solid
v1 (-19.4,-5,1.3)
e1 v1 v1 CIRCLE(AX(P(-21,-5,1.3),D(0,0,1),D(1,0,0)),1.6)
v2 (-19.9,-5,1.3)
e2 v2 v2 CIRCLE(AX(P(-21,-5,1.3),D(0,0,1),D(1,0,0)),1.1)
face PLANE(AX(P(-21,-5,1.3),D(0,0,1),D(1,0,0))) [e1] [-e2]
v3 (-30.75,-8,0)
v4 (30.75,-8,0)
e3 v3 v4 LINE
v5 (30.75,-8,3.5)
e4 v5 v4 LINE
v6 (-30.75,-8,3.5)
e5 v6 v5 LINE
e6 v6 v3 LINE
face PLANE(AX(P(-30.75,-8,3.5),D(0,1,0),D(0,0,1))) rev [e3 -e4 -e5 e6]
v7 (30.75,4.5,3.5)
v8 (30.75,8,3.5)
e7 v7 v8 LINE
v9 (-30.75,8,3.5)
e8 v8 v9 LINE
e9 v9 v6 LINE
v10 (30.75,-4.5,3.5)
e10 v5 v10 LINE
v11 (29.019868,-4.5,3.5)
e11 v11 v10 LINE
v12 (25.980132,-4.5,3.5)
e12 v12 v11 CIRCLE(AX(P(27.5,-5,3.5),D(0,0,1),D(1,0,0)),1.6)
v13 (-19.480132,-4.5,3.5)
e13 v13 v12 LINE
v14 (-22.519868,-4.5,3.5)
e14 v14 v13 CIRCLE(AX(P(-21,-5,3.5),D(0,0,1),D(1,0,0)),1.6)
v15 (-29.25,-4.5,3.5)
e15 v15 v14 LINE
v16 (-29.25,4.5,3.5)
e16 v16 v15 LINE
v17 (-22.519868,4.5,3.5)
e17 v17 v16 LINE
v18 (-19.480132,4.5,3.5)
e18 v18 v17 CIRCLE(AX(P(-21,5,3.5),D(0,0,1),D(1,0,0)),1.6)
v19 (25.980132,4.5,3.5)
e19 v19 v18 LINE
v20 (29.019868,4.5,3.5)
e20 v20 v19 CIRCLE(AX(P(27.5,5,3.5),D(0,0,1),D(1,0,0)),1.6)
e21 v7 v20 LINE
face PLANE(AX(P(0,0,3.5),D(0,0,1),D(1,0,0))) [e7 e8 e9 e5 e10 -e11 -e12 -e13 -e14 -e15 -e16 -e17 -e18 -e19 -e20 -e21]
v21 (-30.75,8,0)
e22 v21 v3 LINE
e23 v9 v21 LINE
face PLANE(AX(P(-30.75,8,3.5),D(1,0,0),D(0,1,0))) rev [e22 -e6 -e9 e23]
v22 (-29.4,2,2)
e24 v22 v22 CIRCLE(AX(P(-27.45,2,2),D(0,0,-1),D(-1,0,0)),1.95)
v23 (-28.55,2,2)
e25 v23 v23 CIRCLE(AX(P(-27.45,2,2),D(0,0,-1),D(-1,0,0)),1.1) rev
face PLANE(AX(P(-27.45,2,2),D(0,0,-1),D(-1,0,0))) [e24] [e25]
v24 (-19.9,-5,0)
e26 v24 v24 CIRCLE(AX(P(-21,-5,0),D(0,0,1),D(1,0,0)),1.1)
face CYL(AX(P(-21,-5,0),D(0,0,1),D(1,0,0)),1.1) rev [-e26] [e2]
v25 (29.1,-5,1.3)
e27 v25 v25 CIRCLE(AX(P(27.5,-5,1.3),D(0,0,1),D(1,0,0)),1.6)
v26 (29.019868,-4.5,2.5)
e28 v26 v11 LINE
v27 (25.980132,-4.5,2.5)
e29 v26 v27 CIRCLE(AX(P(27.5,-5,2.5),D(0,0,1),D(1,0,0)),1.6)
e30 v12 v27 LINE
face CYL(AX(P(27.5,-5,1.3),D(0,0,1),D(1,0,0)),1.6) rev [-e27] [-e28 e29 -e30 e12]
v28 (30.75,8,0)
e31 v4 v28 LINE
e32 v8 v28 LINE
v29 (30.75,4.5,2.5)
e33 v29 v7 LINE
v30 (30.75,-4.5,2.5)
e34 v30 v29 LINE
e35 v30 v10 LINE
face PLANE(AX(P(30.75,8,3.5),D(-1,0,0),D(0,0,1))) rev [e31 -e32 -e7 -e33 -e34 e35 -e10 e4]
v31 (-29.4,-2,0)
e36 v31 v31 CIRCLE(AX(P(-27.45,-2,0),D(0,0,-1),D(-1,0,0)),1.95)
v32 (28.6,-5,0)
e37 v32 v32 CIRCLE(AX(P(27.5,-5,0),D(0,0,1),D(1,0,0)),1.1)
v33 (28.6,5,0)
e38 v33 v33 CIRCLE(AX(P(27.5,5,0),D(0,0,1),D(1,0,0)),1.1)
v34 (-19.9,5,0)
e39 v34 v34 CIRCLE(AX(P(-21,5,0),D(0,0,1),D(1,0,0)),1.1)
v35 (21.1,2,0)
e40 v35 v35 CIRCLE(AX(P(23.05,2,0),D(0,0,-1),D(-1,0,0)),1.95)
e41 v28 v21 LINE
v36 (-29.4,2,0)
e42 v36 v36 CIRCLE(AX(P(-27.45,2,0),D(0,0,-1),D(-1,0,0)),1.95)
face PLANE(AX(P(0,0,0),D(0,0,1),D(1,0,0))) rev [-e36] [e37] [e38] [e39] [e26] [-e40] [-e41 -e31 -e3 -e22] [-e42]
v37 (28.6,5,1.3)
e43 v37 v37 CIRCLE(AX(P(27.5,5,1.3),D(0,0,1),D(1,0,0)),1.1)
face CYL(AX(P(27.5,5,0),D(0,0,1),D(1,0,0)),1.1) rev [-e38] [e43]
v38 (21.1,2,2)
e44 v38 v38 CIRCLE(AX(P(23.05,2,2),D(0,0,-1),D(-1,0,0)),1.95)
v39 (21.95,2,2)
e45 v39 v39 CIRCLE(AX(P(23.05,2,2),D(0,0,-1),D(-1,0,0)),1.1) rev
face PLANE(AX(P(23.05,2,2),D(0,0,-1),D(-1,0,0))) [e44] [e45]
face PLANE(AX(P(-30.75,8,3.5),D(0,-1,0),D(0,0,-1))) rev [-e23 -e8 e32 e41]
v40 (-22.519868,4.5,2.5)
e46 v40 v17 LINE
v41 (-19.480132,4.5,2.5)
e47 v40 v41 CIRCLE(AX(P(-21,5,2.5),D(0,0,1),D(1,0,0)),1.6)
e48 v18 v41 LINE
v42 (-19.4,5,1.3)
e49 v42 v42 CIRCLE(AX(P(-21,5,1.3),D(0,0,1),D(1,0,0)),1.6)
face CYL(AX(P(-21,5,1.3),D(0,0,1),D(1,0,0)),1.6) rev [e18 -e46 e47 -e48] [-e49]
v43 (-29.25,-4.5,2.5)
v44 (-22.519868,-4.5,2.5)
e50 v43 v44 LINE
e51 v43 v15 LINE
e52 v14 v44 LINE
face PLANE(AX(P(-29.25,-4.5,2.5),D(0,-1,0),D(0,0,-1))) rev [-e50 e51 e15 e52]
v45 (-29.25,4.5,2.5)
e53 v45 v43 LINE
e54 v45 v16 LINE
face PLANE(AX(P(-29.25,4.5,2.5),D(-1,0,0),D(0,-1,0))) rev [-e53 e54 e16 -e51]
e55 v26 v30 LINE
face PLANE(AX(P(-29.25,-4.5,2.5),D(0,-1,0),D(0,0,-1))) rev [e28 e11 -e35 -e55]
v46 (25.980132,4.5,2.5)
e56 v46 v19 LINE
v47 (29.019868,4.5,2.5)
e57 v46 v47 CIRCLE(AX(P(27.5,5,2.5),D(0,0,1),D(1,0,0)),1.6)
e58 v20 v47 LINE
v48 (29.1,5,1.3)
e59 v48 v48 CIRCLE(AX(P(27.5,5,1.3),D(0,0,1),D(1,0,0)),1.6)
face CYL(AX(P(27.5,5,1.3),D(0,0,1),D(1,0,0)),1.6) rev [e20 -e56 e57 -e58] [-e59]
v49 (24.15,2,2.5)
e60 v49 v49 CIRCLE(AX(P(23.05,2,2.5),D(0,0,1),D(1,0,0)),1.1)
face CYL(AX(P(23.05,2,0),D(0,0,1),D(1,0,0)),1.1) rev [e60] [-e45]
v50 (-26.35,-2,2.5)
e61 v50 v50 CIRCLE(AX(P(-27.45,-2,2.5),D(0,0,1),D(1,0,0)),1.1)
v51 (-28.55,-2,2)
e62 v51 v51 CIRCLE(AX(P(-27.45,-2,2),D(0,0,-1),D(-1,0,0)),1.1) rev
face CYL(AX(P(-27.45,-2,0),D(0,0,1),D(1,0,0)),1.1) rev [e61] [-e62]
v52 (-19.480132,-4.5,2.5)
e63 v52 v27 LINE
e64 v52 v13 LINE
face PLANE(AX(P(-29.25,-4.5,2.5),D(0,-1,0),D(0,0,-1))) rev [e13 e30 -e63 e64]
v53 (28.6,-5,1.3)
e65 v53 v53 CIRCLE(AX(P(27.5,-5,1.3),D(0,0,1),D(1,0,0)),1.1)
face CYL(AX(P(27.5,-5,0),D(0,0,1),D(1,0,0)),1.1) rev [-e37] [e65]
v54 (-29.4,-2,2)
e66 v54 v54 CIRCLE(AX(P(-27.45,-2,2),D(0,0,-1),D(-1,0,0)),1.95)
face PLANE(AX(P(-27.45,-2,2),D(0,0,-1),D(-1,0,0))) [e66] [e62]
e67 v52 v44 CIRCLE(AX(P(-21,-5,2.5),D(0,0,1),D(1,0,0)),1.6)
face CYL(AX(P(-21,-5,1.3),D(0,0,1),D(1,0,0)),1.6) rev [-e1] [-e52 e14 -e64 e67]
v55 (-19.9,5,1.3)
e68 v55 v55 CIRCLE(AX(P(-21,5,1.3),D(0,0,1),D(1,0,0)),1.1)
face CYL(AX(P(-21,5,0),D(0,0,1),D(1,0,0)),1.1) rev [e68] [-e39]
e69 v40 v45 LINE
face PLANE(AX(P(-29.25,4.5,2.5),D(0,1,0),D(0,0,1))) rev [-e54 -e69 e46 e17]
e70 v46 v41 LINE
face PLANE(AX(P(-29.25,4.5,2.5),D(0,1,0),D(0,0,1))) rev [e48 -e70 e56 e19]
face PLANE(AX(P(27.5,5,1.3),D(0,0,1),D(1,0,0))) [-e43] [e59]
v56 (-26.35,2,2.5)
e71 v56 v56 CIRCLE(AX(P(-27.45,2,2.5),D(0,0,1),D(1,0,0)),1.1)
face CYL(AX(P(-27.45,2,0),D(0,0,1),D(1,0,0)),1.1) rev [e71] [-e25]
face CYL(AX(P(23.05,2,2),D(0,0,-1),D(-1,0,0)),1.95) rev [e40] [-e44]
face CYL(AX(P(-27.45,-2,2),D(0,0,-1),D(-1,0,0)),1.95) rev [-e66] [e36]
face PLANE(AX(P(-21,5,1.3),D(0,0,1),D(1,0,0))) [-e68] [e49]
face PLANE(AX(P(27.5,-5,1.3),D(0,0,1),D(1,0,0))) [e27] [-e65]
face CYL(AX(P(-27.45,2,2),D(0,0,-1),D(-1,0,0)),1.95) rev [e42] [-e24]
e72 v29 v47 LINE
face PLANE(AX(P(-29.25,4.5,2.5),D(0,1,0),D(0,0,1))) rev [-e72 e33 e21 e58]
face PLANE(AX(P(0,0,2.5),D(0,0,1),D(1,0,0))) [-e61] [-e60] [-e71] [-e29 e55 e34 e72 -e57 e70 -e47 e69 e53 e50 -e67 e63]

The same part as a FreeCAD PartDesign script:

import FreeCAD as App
import Part
import Sketcher
Q = App.Units.Quantity

doc = App.newDocument("Part")
params = doc.addObject("Spreadsheet::Sheet", "Params")
for row, (alias, value) in enumerate([
    ("sketch1_height", "16 mm"),
    ("sketch1_width", "61.5 mm"),
    ("pad1_length", "3.5 mm"),
    ("sketch2_width", "60 mm"),
    ("sketch2_height", "9 mm"),
    ("pocket1_length", "1 mm"),
    ("sketch3_diameter", "2.2 mm"),
    ("sketch4_diameter", "3.2 mm"),
    ("pocket3_length", "2.2 mm"),
    ("sketch5_diameter", "2.2 mm"),
    ("sketch6_diameter", "3.9 mm"),
    ("pocket5_length", "2 mm"),
], start=1):
    params.set(f"A{row}", alias)
    params.set(f"B{row}", "=" + value)
    params.setAlias(f"B{row}", alias)

body = doc.addObject("PartDesign::Body", "Body")

# Sketch on XY plane
sketch1 = doc.addObject("Sketcher::SketchObject", "Sketch")
body.addObject(sketch1)
sketch1.AttachmentSupport = (doc.XY_Plane, [""])
sketch1.MapMode = "FlatFace"
sketch1.addGeometry([
    Part.LineSegment(App.Vector(-31, 8, 0), App.Vector(-31, -8, 0)),
    Part.LineSegment(App.Vector(-31, -8, 0), App.Vector(31, -8, 0)),
    Part.LineSegment(App.Vector(31, -8, 0), App.Vector(31, 8, 0)),
    Part.LineSegment(App.Vector(31, 8, 0), App.Vector(-31, 8, 0)),
], False)
sketch1.addConstraint([
    Sketcher.Constraint("Coincident", 0, 2, 1, 1),
    Sketcher.Constraint("Coincident", 1, 2, 2, 1),
    Sketcher.Constraint("Coincident", 2, 2, 3, 1),
    Sketcher.Constraint("Coincident", 3, 2, 0, 1),
    Sketcher.Constraint("Vertical", 0),
    Sketcher.Constraint("Horizontal", 1),
    Sketcher.Constraint("Vertical", 2),
    Sketcher.Constraint("Horizontal", 3),
    Sketcher.Constraint("Symmetric", 0, 2, 2, 2, -1, 1),
    Sketcher.Constraint("DistanceY", 0, 2, 0, 1, Q("16 mm")),
    Sketcher.Constraint("DistanceX", 1, 1, 1, 2, Q("61.5 mm")),
])
sketch1.setExpression("Constraints[9]", "Params.sketch1_height")
sketch1.setExpression("Constraints[10]", "Params.sketch1_width")
pad1 = doc.addObject("PartDesign::Pad", "Pad")
body.addObject(pad1)
pad1.Profile = sketch1
pad1.setExpression("Length", "Params.pad1_length")

# Sketch on XY plane
sketch2 = doc.addObject("Sketcher::SketchObject", "Sketch001")
body.addObject(sketch2)
sketch2.AttachmentSupport = (doc.XY_Plane, [""])
sketch2.MapMode = "FlatFace"
sketch2.AttachmentOffset = App.Placement(App.Vector(0, 0, 3.5), App.Rotation())
sketch2.addGeometry([
    Part.LineSegment(App.Vector(-29, 4, 0), App.Vector(-29, -4, 0)),
    Part.LineSegment(App.Vector(-29, -4, 0), App.Vector(31, -4, 0)),
    Part.LineSegment(App.Vector(31, -4, 0), App.Vector(31, 4, 0)),
    Part.LineSegment(App.Vector(31, 4, 0), App.Vector(-29, 4, 0)),
], False)
sketch2.addConstraint([
    Sketcher.Constraint("Coincident", 0, 2, 1, 1),
    Sketcher.Constraint("Coincident", 1, 2, 2, 1),
    Sketcher.Constraint("Coincident", 2, 2, 3, 1),
    Sketcher.Constraint("Coincident", 3, 2, 0, 1),
    Sketcher.Constraint("Vertical", 0),
    Sketcher.Constraint("Horizontal", 1),
    Sketcher.Constraint("Vertical", 2),
    Sketcher.Constraint("Horizontal", 3),
    Sketcher.Constraint("DistanceX", 1, 1, 1, 2, Q("60 mm")),
    Sketcher.Constraint("DistanceY", 0, 2, 0, 1, Q("9 mm")),
    Sketcher.Constraint("DistanceY", 0, 2, -1, 1, Q("4.5 mm")),
    Sketcher.Constraint("DistanceX", 0, 2, -1, 1, Q("29.25 mm")),
])
sketch2.setExpression("Constraints[8]", "Params.sketch2_width")
sketch2.setExpression("Constraints[9]", "Params.sketch2_height")
pocket1 = doc.addObject("PartDesign::Pocket", "Pocket")
body.addObject(pocket1)
pocket1.Profile = sketch2
pocket1.setExpression("Length", "Params.pocket1_length")

# Sketch on XY plane
sketch3 = doc.addObject("Sketcher::SketchObject", "Sketch002")
body.addObject(sketch3)
sketch3.AttachmentSupport = (doc.XY_Plane, [""])
sketch3.MapMode = "FlatFace"
sketch3.AttachmentOffset = App.Placement(App.Vector(0, 0, 2.5), App.Rotation())
sketch3.addGeometry([
    Part.Circle(App.Vector(-27.4, 2, 0), App.Vector(0, 0, 1), 1.1),
    Part.Circle(App.Vector(-27.4, -2, 0), App.Vector(0, 0, 1), 1.1),
    Part.Circle(App.Vector(23.1, 2, 0), App.Vector(0, 0, 1), 1.1),
], False)
sketch3.addConstraint([
    Sketcher.Constraint("Equal", 0, 1),
    Sketcher.Constraint("Equal", 1, 2),
    Sketcher.Constraint("Symmetric", 0, 3, 1, 3, -1),
    Sketcher.Constraint("Horizontal", 0, 3, 2, 3),
    Sketcher.Constraint("Diameter", 0, Q("2.2 mm")),
    Sketcher.Constraint("DistanceY", -1, 1, 0, 3, Q("2 mm")),
    Sketcher.Constraint("DistanceX", 0, 3, 2, 3, Q("50.5 mm")),
    Sketcher.Constraint("DistanceX", 0, 3, -1, 1, Q("27.45 mm")),
])
sketch3.setExpression("Constraints[4]", "Params.sketch3_diameter")
pocket2 = doc.addObject("PartDesign::Pocket", "Pocket001")
body.addObject(pocket2)
pocket2.Profile = sketch3
pocket2.Type = "ThroughAll"

# Sketch on XY plane
sketch4 = doc.addObject("Sketcher::SketchObject", "Sketch003")
body.addObject(sketch4)
sketch4.AttachmentSupport = (doc.XY_Plane, [""])
sketch4.MapMode = "FlatFace"
sketch4.AttachmentOffset = App.Placement(App.Vector(0, 0, 3.5), App.Rotation())
sketch4.addGeometry([
    Part.Circle(App.Vector(-21, 5, 0), App.Vector(0, 0, 1), 1.6),
    Part.Circle(App.Vector(-21, -5, 0), App.Vector(0, 0, 1), 1.6),
    Part.Circle(App.Vector(27.5, 5, 0), App.Vector(0, 0, 1), 1.6),
    Part.Circle(App.Vector(27.5, -5, 0), App.Vector(0, 0, 1), 1.6),
], False)
sketch4.addConstraint([
    Sketcher.Constraint("Equal", 0, 1),
    Sketcher.Constraint("Equal", 1, 2),
    Sketcher.Constraint("Equal", 2, 3),
    Sketcher.Constraint("Symmetric", 0, 3, 1, 3, -1),
    Sketcher.Constraint("Symmetric", 2, 3, 3, 3, -1),
    Sketcher.Constraint("Horizontal", 0, 3, 2, 3),
    Sketcher.Constraint("Diameter", 0, Q("3.2 mm")),
    Sketcher.Constraint("DistanceX", 0, 3, -1, 1, Q("21 mm")),
    Sketcher.Constraint("DistanceY", -1, 1, 0, 3, Q("5 mm")),
    Sketcher.Constraint("DistanceX", -1, 1, 2, 3, Q("27.5 mm")),
])
sketch4.setExpression("Constraints[6]", "Params.sketch4_diameter")
pocket3 = doc.addObject("PartDesign::Pocket", "Pocket002")
body.addObject(pocket3)
pocket3.Profile = sketch4
pocket3.setExpression("Length", "Params.pocket3_length")

# Sketch on XY plane
sketch5 = doc.addObject("Sketcher::SketchObject", "Sketch004")
body.addObject(sketch5)
sketch5.AttachmentSupport = (doc.XY_Plane, [""])
sketch5.MapMode = "FlatFace"
sketch5.AttachmentOffset = App.Placement(App.Vector(0, 0, 2.5), App.Rotation())
sketch5.addGeometry([
    Part.Circle(App.Vector(-21, 5, 0), App.Vector(0, 0, 1), 1.1),
    Part.Circle(App.Vector(-21, -5, 0), App.Vector(0, 0, 1), 1.1),
    Part.Circle(App.Vector(27.5, 5, 0), App.Vector(0, 0, 1), 1.1),
    Part.Circle(App.Vector(27.5, -5, 0), App.Vector(0, 0, 1), 1.1),
], False)
sketch5.addConstraint([
    Sketcher.Constraint("Equal", 0, 1),
    Sketcher.Constraint("Equal", 1, 2),
    Sketcher.Constraint("Equal", 2, 3),
    Sketcher.Constraint("Symmetric", 0, 3, 1, 3, -1),
    Sketcher.Constraint("Symmetric", 2, 3, 3, 3, -1),
    Sketcher.Constraint("Horizontal", 0, 3, 2, 3),
    Sketcher.Constraint("Diameter", 0, Q("2.2 mm")),
    Sketcher.Constraint("DistanceX", 0, 3, -1, 1, Q("21 mm")),
    Sketcher.Constraint("DistanceY", -1, 1, 0, 3, Q("5 mm")),
    Sketcher.Constraint("DistanceX", -1, 1, 2, 3, Q("27.5 mm")),
])
sketch5.setExpression("Constraints[6]", "Params.sketch5_diameter")
pocket4 = doc.addObject("PartDesign::Pocket", "Pocket003")
body.addObject(pocket4)
pocket4.Profile = sketch5
pocket4.Type = "ThroughAll"

# Sketch on XY plane
sketch6 = doc.addObject("Sketcher::SketchObject", "Sketch005")
body.addObject(sketch6)
sketch6.AttachmentSupport = (doc.XY_Plane, [""])
sketch6.MapMode = "FlatFace"
sketch6.addGeometry([
    Part.Circle(App.Vector(23.1, 2, 0), App.Vector(0, 0, 1), 1.9),
    Part.Circle(App.Vector(-27.4, -2, 0), App.Vector(0, 0, 1), 1.9),
    Part.Circle(App.Vector(-27.4, 2, 0), App.Vector(0, 0, 1), 1.9),
], False)
sketch6.addConstraint([
    Sketcher.Constraint("Equal", 0, 1),
    Sketcher.Constraint("Equal", 1, 2),
    Sketcher.Constraint("Symmetric", 1, 3, 2, 3, -1),
    Sketcher.Constraint("Horizontal", 0, 3, 2, 3),
    Sketcher.Constraint("Diameter", 0, Q("3.9 mm")),
    Sketcher.Constraint("DistanceY", -1, 1, 0, 3, Q("2 mm")),
    Sketcher.Constraint("DistanceX", 1, 3, 0, 3, Q("50.5 mm")),
    Sketcher.Constraint("DistanceX", -1, 1, 0, 3, Q("23.05 mm")),
])
sketch6.setExpression("Constraints[4]", "Params.sketch6_diameter")
pocket5 = doc.addObject("PartDesign::Pocket", "Pocket004")
body.addObject(pocket5)
pocket5.Profile = sketch6
pocket5.setExpression("Length", "Params.pocket5_length")
pocket5.Reversed = True

doc.recompute()
